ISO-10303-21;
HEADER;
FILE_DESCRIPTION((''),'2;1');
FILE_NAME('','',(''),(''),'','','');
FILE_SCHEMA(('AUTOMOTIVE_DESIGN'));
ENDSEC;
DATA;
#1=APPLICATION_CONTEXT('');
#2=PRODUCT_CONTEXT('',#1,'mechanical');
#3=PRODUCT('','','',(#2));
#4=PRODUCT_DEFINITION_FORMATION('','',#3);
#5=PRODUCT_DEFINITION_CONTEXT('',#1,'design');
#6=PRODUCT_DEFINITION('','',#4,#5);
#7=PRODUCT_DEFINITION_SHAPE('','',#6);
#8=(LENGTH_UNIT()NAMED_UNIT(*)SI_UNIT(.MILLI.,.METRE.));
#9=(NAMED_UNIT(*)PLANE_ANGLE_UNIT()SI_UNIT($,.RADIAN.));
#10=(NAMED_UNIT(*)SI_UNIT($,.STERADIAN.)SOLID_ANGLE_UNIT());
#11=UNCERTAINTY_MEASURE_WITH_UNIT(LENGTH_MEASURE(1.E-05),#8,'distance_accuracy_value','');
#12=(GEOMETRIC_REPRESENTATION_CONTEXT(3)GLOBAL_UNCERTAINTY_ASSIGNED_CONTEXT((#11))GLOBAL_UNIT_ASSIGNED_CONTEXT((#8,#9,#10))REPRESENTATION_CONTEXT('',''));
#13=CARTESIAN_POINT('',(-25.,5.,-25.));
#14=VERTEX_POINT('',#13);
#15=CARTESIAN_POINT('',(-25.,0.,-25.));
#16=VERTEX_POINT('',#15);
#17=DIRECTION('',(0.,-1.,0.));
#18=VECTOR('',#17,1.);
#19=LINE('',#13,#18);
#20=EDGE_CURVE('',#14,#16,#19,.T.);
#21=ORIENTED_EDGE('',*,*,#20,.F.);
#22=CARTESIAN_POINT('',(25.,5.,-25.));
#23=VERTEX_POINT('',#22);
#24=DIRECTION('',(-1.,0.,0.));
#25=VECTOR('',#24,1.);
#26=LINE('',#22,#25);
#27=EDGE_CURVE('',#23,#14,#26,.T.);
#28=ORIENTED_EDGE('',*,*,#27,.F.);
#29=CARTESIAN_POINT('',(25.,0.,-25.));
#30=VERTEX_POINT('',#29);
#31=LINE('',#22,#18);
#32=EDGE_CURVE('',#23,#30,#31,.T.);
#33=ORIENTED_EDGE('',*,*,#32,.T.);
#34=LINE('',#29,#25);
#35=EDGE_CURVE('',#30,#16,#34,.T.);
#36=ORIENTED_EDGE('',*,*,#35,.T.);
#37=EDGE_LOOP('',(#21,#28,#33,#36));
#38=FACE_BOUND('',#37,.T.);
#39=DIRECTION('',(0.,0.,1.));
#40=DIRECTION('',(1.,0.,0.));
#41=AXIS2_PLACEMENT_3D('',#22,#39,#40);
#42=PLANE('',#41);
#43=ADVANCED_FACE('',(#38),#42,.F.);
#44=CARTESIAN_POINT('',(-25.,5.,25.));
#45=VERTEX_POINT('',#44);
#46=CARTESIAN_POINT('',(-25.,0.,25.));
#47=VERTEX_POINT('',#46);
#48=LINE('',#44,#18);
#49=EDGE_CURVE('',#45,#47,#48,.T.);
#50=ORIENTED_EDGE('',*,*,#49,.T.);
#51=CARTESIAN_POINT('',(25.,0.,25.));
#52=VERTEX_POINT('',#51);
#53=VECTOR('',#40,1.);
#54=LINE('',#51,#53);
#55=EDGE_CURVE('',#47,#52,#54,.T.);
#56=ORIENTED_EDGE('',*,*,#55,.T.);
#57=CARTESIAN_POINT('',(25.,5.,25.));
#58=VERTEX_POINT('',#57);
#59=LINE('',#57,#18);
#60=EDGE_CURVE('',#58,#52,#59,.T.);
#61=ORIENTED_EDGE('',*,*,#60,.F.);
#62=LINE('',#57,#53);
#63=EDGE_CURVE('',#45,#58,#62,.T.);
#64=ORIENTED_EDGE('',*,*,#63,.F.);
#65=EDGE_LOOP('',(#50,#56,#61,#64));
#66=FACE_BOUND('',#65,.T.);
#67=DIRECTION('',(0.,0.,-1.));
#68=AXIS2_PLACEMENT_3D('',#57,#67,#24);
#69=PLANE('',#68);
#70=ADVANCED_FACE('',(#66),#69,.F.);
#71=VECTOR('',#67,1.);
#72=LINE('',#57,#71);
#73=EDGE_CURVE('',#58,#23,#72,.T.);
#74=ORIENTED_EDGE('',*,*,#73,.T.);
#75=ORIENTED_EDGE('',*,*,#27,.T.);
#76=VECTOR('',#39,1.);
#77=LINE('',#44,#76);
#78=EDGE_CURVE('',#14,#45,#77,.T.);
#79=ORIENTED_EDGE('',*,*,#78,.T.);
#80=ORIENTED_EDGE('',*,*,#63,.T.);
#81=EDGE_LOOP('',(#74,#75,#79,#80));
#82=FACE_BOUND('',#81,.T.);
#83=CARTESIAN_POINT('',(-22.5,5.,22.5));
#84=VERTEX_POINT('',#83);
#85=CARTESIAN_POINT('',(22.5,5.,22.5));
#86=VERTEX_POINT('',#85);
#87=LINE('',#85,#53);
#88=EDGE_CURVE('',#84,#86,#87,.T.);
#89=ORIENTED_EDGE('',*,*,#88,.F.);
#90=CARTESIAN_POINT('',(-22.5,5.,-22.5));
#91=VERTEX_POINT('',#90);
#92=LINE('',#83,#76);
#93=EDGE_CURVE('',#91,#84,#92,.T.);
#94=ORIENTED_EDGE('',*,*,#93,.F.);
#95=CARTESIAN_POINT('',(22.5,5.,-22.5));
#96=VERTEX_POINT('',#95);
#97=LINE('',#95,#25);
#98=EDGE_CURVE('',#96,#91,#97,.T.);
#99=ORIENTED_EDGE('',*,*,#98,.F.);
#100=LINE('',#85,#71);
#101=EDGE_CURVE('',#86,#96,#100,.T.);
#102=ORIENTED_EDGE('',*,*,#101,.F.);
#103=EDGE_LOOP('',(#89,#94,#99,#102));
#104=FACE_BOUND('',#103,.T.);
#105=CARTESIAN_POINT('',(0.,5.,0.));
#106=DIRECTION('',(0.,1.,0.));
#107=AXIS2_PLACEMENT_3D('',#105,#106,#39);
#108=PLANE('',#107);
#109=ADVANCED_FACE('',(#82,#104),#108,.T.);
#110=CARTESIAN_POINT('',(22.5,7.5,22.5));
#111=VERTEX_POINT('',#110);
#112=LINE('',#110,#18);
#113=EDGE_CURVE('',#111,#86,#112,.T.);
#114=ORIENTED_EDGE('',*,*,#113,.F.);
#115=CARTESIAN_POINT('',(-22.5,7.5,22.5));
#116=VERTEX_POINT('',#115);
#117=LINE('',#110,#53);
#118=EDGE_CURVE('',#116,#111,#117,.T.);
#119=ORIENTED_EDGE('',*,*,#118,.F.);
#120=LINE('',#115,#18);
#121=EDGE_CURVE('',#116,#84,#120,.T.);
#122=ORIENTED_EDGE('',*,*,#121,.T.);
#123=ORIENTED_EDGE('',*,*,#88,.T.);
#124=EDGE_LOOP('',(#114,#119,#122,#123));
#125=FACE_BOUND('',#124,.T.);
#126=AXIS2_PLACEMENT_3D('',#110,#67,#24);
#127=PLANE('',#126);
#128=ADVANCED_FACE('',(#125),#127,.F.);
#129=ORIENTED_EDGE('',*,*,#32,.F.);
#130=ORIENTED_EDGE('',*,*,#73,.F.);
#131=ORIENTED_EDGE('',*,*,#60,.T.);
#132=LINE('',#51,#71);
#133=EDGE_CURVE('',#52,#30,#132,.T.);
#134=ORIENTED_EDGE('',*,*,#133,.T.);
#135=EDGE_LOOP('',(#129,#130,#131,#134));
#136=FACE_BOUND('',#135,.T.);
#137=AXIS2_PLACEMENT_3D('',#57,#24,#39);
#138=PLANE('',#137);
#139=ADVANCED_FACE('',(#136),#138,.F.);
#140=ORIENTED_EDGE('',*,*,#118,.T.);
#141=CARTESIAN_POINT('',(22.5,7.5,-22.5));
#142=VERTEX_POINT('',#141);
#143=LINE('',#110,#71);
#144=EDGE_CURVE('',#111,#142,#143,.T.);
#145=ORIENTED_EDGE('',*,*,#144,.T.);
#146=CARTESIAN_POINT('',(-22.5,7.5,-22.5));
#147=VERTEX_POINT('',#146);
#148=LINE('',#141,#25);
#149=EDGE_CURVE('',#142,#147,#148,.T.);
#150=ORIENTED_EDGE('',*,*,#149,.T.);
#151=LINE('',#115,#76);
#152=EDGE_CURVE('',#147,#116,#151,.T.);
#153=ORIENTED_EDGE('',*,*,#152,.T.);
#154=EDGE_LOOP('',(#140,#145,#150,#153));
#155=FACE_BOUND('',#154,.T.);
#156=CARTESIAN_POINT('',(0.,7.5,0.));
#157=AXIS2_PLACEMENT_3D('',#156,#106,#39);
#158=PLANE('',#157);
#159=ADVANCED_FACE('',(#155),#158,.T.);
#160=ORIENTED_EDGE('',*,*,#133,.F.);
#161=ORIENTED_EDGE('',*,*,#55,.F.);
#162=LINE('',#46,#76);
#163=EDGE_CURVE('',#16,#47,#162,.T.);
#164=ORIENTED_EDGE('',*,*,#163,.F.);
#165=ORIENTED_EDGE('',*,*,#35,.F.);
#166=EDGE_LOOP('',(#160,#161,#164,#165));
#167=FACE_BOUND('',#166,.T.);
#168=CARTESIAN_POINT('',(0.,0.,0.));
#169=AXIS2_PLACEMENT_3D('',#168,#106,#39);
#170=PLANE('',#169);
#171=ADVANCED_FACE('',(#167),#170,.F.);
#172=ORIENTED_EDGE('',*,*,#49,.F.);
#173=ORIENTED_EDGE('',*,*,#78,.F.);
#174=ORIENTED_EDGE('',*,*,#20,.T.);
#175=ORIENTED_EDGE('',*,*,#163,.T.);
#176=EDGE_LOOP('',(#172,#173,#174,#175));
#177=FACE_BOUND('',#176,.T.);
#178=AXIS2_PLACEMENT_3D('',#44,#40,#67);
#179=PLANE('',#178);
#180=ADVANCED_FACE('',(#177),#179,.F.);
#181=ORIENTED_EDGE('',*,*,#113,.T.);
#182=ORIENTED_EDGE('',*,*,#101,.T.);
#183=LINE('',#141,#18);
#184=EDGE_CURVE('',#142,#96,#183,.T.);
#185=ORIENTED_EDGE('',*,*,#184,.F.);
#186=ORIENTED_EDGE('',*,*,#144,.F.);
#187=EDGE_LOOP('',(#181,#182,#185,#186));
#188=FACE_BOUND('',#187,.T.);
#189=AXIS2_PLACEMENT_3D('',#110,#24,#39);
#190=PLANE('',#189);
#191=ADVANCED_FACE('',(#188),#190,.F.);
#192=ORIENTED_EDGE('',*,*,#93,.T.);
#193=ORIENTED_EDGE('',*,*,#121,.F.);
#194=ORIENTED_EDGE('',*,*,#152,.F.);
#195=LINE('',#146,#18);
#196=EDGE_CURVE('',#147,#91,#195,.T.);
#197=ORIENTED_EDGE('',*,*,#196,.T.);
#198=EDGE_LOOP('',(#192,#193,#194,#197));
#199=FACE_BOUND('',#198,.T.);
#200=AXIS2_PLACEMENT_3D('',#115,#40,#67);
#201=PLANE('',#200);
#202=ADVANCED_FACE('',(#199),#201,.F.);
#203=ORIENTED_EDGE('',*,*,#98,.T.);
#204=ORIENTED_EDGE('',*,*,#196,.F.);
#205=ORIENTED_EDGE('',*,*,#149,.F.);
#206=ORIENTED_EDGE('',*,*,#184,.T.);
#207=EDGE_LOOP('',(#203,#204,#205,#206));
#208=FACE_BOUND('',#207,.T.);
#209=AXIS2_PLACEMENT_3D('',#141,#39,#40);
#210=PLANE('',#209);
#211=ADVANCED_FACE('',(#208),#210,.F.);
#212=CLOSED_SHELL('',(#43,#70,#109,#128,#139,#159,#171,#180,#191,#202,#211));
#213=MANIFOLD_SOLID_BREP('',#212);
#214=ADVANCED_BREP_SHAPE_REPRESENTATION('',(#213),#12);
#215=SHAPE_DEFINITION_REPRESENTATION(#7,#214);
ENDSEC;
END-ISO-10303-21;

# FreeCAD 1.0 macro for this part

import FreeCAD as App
import Part
import Sketcher

V = App.Vector


def add_polygon(sketch, points):
    """Adds a closed chain of lines whose ends are joined by coincident constraints."""
    first, n = sketch.GeometryCount, len(points)
    for a, b in zip(points, points[1:] + points[:1]):
        sketch.addGeometry(Part.LineSegment(App.Vector(*a, 0), App.Vector(*b, 0)), False)
    for i in range(n):
        sketch.addConstraint(Sketcher.Constraint("Coincident", first + i, 2, first + (i + 1) % n, 1))

doc = App.newDocument("Part")
body = doc.addObject("PartDesign::Body", "Body")

# Sketch on XZ plane
sketch1 = body.newObject("Sketcher::SketchObject", "Sketch")
sketch1.AttachmentSupport = (doc.getObject("XZ_Plane"), [""])
sketch1.MapMode = "FlatFace"
add_polygon(sketch1, [(-25, -25), (-25, 25), (25, 25), (25, -25)])  # lines 0-3
sketch1.addConstraint(Sketcher.Constraint("Vertical", 0))
sketch1.addConstraint(Sketcher.Constraint("Horizontal", 1))
sketch1.addConstraint(Sketcher.Constraint("Vertical", 2))
sketch1.addConstraint(Sketcher.Constraint("Horizontal", 3))
sketch1.addConstraint(Sketcher.Constraint("Symmetric", 0, 2, 2, 2, -1, 1))
sketch1.addConstraint(Sketcher.Constraint("Equal", 3, 0))
sketch1.addConstraint(Sketcher.Constraint("DistanceX", 1, 1, 1, 2, 50.0))
pad1 = body.newObject("PartDesign::Pad", "Pad")
pad1.Profile = sketch1
pad1.Length = 5
pad1.Reversed = True

# Sketch on XZ plane
sketch2 = body.newObject("Sketcher::SketchObject", "Sketch001")
sketch2.AttachmentSupport = (doc.getObject("XZ_Plane"), [""])
sketch2.MapMode = "FlatFace"
sketch2.AttachmentOffset = App.Placement(V(0, 0, -5), App.Rotation())
add_polygon(sketch2, [(-22, -22), (-22, 22), (22, 22), (22, -22)])  # lines 0-3
sketch2.addConstraint(Sketcher.Constraint("Vertical", 0))
sketch2.addConstraint(Sketcher.Constraint("Horizontal", 1))
sketch2.addConstraint(Sketcher.Constraint("Vertical", 2))
sketch2.addConstraint(Sketcher.Constraint("Horizontal", 3))
sketch2.addConstraint(Sketcher.Constraint("Symmetric", 0, 2, 2, 2, -1, 1))
sketch2.addConstraint(Sketcher.Constraint("Equal", 3, 0))
sketch2.addConstraint(Sketcher.Constraint("DistanceX", 1, 1, 1, 2, 45.0))
pad2 = body.newObject("PartDesign::Pad", "Pad001")
pad2.Profile = sketch2
pad2.Length = 2.5
pad2.Reversed = True

doc.recompute()
